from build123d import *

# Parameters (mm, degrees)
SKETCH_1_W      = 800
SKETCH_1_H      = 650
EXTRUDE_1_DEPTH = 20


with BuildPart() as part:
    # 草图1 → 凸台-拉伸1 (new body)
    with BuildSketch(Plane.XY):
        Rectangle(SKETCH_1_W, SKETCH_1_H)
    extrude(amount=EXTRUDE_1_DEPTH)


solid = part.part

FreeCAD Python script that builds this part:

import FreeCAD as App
import Part
import Sketcher

V = App.Vector

doc = App.newDocument("Part")
params = doc.addObject("Spreadsheet::Sheet", "Params")
for row, (alias, value) in enumerate([
    ("sketch1_width", "800 mm"),
    ("sketch1_height", "650 mm"),
    ("pad1_length", "20 mm"),
], start=1):
    params.set(f"A{row}", alias)
    params.set(f"B{row}", "=" + value)
    params.setAlias(f"B{row}", alias)

body = doc.addObject("PartDesign::Body", "Body")

# Sketch on XY plane
sketch1 = body.newObject("Sketcher::SketchObject", "Sketch")
sketch1.AttachmentSupport = (doc.getObject("XY_Plane"), [""])
sketch1.MapMode = "FlatFace"
sketch1.addGeometry(Part.LineSegment(V(-400, 325, 0), V(-400, -325, 0)), False)
sketch1.addGeometry(Part.LineSegment(V(-400, -325, 0), V(400, -325, 0)), False)
sketch1.addGeometry(Part.LineSegment(V(400, -325, 0), V(400, 325, 0)), False)
sketch1.addGeometry(Part.LineSegment(V(400, 325, 0), V(-400, 325, 0)), False)
sketch1.addConstraint(Sketcher.Constraint("Coincident", 0, 2, 1, 1))
sketch1.addConstraint(Sketcher.Constraint("Coincident", 1, 2, 2, 1))
sketch1.addConstraint(Sketcher.Constraint("Coincident", 2, 2, 3, 1))
sketch1.addConstraint(Sketcher.Constraint("Coincident", 3, 2, 0, 1))
sketch1.addConstraint(Sketcher.Constraint("Vertical", 0))
sketch1.addConstraint(Sketcher.Constraint("Horizontal", 1))
sketch1.addConstraint(Sketcher.Constraint("Vertical", 2))
sketch1.addConstraint(Sketcher.Constraint("Horizontal", 3))
sketch1.addConstraint(Sketcher.Constraint("Symmetric", 0, 2, 2, 2, -1, 1))
sketch1.addConstraint(Sketcher.Constraint("DistanceX", 1, 1, 1, 2, 800.0))
sketch1.addConstraint(Sketcher.Constraint("DistanceY", 0, 2, 0, 1, 650.0))
sketch1.setExpression("Constraints[9]", "Params.sketch1_width")
sketch1.setExpression("Constraints[10]", "Params.sketch1_height")
pad1 = body.newObject("PartDesign::Pad", "Pad")
pad1.Profile = sketch1
pad1.setExpression("Length", "Params.pad1_length")

doc.recompute()
